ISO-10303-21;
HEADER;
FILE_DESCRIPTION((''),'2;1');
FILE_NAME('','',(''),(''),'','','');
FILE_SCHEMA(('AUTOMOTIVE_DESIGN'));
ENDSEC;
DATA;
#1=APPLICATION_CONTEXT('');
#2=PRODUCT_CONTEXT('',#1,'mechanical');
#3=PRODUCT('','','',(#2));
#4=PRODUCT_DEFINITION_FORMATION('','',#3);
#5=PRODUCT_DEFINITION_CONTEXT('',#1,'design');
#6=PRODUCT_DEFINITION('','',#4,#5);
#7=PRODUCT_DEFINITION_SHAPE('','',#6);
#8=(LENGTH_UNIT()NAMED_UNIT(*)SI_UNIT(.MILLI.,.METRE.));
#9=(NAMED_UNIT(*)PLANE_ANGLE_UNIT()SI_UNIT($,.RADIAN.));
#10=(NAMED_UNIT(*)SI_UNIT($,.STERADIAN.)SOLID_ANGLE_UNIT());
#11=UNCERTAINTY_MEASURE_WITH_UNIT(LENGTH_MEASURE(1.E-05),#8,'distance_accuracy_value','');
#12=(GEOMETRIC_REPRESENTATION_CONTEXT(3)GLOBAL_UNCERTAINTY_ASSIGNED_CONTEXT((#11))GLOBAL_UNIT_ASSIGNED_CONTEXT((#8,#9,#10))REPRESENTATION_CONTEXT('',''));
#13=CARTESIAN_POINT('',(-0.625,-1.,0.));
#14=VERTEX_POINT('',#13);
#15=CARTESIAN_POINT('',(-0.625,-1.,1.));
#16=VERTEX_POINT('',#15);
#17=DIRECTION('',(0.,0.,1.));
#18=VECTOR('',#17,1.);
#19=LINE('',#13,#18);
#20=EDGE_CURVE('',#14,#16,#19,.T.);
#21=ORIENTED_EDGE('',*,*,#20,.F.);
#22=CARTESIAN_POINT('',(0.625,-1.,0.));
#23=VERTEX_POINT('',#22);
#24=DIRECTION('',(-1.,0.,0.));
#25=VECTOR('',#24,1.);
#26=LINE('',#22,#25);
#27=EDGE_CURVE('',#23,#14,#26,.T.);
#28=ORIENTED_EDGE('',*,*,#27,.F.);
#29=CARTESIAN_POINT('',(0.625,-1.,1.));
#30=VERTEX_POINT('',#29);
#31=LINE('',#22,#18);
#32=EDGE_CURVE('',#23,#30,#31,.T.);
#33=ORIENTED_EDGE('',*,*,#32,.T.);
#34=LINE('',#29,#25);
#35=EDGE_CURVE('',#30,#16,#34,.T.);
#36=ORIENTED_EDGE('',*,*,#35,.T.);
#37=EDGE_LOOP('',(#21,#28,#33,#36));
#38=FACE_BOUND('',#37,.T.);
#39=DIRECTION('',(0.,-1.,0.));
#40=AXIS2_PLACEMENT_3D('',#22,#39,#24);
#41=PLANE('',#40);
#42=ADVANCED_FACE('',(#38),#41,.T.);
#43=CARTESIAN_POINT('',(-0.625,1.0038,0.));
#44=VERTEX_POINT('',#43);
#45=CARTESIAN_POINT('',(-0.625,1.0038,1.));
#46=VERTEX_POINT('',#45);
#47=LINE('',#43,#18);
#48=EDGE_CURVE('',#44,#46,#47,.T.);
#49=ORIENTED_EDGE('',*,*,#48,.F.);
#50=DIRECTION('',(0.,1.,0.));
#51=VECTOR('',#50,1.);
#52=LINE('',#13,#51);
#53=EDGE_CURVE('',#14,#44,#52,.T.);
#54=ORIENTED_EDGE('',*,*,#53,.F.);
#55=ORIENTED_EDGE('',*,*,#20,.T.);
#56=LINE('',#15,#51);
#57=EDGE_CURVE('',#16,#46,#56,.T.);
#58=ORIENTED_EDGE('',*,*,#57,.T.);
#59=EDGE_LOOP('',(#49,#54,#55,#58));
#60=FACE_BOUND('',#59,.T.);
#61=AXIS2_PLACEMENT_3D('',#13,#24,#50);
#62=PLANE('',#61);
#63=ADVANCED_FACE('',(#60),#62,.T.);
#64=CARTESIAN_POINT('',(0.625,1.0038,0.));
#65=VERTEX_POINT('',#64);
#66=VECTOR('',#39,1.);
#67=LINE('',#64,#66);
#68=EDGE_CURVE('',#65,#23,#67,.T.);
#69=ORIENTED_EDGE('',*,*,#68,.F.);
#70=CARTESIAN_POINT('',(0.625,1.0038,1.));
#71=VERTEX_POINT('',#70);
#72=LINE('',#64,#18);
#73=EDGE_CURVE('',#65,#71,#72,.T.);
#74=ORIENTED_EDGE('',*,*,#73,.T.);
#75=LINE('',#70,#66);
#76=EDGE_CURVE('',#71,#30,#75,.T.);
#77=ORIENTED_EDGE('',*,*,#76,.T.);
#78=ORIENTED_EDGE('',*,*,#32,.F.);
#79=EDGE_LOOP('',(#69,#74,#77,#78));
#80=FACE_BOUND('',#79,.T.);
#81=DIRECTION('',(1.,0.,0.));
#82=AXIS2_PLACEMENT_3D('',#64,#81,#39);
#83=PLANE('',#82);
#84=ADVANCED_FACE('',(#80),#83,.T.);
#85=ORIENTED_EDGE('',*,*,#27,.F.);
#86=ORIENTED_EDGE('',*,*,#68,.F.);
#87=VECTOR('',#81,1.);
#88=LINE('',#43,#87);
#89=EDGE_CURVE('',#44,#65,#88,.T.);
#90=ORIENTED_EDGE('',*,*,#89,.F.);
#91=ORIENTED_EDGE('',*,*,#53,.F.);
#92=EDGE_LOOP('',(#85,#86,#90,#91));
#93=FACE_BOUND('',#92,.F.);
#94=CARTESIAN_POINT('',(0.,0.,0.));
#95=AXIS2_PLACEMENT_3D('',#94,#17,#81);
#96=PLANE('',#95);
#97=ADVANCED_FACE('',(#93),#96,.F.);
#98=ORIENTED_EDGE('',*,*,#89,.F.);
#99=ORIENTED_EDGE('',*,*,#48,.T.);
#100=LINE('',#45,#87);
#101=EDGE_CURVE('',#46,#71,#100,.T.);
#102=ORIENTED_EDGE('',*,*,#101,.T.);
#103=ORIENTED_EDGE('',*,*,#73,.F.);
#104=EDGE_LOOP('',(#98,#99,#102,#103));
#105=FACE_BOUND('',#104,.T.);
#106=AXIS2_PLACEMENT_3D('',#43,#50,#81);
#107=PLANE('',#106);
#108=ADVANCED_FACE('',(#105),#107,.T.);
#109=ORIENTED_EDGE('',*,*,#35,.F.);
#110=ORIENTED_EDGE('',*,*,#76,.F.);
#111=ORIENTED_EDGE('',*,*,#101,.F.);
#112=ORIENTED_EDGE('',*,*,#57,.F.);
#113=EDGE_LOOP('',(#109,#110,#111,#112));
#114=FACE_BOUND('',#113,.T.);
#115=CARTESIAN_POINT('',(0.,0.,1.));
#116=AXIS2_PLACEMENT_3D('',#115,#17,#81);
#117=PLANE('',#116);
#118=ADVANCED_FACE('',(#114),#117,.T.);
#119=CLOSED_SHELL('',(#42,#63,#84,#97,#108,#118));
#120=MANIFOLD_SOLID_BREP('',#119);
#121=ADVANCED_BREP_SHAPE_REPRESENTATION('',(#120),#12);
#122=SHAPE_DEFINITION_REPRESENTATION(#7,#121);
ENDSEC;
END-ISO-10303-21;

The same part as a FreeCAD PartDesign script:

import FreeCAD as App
import Part
import Sketcher
Q = App.Units.Quantity

doc = App.newDocument("Part")
body = doc.addObject("PartDesign::Body", "Body")

sketch1 = doc.addObject("Sketcher::SketchObject", "Sketch")
body.addObject(sketch1)
sketch1.AttachmentSupport = (doc.XY_Plane, [""])
sketch1.MapMode = "FlatFace"
sketch1.addGeometry([
    Part.LineSegment(App.Vector(0.625, 1.0038, 0), App.Vector(-0.625, 1.0038, 0)),
    Part.LineSegment(App.Vector(-0.625, 1.0038, 0), App.Vector(-0.625, -1, 0)),
    Part.LineSegment(App.Vector(-0.625, -1, 0), App.Vector(0.625, -1, 0)),
    Part.LineSegment(App.Vector(0.625, -1, 0), App.Vector(0.625, 1.0038, 0)),
], False)
sketch1.addConstraint([
    Sketcher.Constraint("Coincident", 0, 2, 1, 1),
    Sketcher.Constraint("Coincident", 1, 2, 2, 1),
    Sketcher.Constraint("Coincident", 2, 2, 3, 1),
    Sketcher.Constraint("Coincident", 3, 2, 0, 1),
    Sketcher.Constraint("Horizontal", 0),
    Sketcher.Constraint("Vertical", 1),
    Sketcher.Constraint("Horizontal", 2),
    Sketcher.Constraint("Vertical", 3),
    Sketcher.Constraint("DistanceY", 1, 2, -1, 1, Q("1 mm")),
    Sketcher.Constraint("DistanceX", 0, 2, 0, 1, Q("1.25 mm")),
    Sketcher.Constraint("DistanceY", 1, 2, 1, 1, Q("2.0038 mm")),
    Sketcher.Constraint("DistanceX", 0, 2, -1, 1, Q("0.625 mm")),
])
pad1 = doc.addObject("PartDesign::Pad", "Pad")
body.addObject(pad1)
pad1.Profile = sketch1
pad1.Length = 1

doc.recompute()
